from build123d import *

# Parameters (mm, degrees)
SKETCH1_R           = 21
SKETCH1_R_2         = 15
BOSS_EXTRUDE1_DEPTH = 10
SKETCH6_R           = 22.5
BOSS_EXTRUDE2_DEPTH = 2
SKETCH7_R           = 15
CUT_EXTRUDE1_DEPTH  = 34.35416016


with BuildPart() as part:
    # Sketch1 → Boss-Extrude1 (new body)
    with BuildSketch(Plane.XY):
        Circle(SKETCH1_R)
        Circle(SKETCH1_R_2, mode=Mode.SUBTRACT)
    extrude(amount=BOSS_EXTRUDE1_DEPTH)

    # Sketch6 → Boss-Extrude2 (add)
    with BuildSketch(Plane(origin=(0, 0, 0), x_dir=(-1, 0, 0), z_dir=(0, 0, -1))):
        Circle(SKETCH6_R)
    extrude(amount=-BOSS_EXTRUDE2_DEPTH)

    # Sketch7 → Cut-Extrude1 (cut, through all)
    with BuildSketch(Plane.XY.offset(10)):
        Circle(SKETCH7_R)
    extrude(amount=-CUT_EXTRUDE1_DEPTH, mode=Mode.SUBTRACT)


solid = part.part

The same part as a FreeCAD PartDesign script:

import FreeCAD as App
import Part
import Sketcher

V = App.Vector

doc = App.newDocument("Part")
body = doc.addObject("PartDesign::Body", "Body")

# Sketch on XY plane
sketch1 = body.newObject("Sketcher::SketchObject", "Sketch")
sketch1.AttachmentSupport = (doc.getObject("XY_Plane"), [""])
sketch1.MapMode = "FlatFace"
sketch1.addGeometry([
    Part.Circle(V(0, 0, 0), V(0, 0, 1), 21),
    Part.Circle(V(0, 0, 0), V(0, 0, 1), 15),
], False)
sketch1.addConstraint([
    Sketcher.Constraint("Coincident", 0, 3, -1, 1),
    Sketcher.Constraint("Coincident", 1, 3, -1, 1),
    Sketcher.Constraint("Diameter", 0, 42.0),
    Sketcher.Constraint("Diameter", 1, 30.0),
])
pad1 = body.newObject("PartDesign::Pad", "Pad")
pad1.Profile = sketch1
pad1.Length = 10

# Sketch on XY plane
sketch2 = body.newObject("Sketcher::SketchObject", "Sketch001")
sketch2.AttachmentSupport = (doc.getObject("XY_Plane"), [""])
sketch2.MapMode = "FlatFace"
sketch2.addGeometry(Part.Circle(V(0, 0, 0), V(0, 0, 1), 22), False)
sketch2.addConstraint([
    Sketcher.Constraint("Coincident", 0, 3, -1, 1),
    Sketcher.Constraint("Diameter", 0, 45.0),
])
pad2 = body.newObject("PartDesign::Pad", "Pad001")
pad2.Profile = sketch2
pad2.Length = 2

# Sketch on XY plane
sketch3 = body.newObject("Sketcher::SketchObject", "Sketch002")
sketch3.AttachmentSupport = (doc.getObject("XY_Plane"), [""])
sketch3.MapMode = "FlatFace"
sketch3.AttachmentOffset = App.Placement(V(0, 0, 10), App.Rotation())
sketch3.addGeometry(Part.Circle(V(0, 0, 0), V(0, 0, 1), 15), False)
sketch3.addConstraint([
    Sketcher.Constraint("Coincident", 0, 3, -1, 1),
    Sketcher.Constraint("Diameter", 0, 30.0),
])
pocket1 = body.newObject("PartDesign::Pocket", "Pocket")
pocket1.Profile = sketch3
pocket1.Type = "ThroughAll"

doc.recompute()
